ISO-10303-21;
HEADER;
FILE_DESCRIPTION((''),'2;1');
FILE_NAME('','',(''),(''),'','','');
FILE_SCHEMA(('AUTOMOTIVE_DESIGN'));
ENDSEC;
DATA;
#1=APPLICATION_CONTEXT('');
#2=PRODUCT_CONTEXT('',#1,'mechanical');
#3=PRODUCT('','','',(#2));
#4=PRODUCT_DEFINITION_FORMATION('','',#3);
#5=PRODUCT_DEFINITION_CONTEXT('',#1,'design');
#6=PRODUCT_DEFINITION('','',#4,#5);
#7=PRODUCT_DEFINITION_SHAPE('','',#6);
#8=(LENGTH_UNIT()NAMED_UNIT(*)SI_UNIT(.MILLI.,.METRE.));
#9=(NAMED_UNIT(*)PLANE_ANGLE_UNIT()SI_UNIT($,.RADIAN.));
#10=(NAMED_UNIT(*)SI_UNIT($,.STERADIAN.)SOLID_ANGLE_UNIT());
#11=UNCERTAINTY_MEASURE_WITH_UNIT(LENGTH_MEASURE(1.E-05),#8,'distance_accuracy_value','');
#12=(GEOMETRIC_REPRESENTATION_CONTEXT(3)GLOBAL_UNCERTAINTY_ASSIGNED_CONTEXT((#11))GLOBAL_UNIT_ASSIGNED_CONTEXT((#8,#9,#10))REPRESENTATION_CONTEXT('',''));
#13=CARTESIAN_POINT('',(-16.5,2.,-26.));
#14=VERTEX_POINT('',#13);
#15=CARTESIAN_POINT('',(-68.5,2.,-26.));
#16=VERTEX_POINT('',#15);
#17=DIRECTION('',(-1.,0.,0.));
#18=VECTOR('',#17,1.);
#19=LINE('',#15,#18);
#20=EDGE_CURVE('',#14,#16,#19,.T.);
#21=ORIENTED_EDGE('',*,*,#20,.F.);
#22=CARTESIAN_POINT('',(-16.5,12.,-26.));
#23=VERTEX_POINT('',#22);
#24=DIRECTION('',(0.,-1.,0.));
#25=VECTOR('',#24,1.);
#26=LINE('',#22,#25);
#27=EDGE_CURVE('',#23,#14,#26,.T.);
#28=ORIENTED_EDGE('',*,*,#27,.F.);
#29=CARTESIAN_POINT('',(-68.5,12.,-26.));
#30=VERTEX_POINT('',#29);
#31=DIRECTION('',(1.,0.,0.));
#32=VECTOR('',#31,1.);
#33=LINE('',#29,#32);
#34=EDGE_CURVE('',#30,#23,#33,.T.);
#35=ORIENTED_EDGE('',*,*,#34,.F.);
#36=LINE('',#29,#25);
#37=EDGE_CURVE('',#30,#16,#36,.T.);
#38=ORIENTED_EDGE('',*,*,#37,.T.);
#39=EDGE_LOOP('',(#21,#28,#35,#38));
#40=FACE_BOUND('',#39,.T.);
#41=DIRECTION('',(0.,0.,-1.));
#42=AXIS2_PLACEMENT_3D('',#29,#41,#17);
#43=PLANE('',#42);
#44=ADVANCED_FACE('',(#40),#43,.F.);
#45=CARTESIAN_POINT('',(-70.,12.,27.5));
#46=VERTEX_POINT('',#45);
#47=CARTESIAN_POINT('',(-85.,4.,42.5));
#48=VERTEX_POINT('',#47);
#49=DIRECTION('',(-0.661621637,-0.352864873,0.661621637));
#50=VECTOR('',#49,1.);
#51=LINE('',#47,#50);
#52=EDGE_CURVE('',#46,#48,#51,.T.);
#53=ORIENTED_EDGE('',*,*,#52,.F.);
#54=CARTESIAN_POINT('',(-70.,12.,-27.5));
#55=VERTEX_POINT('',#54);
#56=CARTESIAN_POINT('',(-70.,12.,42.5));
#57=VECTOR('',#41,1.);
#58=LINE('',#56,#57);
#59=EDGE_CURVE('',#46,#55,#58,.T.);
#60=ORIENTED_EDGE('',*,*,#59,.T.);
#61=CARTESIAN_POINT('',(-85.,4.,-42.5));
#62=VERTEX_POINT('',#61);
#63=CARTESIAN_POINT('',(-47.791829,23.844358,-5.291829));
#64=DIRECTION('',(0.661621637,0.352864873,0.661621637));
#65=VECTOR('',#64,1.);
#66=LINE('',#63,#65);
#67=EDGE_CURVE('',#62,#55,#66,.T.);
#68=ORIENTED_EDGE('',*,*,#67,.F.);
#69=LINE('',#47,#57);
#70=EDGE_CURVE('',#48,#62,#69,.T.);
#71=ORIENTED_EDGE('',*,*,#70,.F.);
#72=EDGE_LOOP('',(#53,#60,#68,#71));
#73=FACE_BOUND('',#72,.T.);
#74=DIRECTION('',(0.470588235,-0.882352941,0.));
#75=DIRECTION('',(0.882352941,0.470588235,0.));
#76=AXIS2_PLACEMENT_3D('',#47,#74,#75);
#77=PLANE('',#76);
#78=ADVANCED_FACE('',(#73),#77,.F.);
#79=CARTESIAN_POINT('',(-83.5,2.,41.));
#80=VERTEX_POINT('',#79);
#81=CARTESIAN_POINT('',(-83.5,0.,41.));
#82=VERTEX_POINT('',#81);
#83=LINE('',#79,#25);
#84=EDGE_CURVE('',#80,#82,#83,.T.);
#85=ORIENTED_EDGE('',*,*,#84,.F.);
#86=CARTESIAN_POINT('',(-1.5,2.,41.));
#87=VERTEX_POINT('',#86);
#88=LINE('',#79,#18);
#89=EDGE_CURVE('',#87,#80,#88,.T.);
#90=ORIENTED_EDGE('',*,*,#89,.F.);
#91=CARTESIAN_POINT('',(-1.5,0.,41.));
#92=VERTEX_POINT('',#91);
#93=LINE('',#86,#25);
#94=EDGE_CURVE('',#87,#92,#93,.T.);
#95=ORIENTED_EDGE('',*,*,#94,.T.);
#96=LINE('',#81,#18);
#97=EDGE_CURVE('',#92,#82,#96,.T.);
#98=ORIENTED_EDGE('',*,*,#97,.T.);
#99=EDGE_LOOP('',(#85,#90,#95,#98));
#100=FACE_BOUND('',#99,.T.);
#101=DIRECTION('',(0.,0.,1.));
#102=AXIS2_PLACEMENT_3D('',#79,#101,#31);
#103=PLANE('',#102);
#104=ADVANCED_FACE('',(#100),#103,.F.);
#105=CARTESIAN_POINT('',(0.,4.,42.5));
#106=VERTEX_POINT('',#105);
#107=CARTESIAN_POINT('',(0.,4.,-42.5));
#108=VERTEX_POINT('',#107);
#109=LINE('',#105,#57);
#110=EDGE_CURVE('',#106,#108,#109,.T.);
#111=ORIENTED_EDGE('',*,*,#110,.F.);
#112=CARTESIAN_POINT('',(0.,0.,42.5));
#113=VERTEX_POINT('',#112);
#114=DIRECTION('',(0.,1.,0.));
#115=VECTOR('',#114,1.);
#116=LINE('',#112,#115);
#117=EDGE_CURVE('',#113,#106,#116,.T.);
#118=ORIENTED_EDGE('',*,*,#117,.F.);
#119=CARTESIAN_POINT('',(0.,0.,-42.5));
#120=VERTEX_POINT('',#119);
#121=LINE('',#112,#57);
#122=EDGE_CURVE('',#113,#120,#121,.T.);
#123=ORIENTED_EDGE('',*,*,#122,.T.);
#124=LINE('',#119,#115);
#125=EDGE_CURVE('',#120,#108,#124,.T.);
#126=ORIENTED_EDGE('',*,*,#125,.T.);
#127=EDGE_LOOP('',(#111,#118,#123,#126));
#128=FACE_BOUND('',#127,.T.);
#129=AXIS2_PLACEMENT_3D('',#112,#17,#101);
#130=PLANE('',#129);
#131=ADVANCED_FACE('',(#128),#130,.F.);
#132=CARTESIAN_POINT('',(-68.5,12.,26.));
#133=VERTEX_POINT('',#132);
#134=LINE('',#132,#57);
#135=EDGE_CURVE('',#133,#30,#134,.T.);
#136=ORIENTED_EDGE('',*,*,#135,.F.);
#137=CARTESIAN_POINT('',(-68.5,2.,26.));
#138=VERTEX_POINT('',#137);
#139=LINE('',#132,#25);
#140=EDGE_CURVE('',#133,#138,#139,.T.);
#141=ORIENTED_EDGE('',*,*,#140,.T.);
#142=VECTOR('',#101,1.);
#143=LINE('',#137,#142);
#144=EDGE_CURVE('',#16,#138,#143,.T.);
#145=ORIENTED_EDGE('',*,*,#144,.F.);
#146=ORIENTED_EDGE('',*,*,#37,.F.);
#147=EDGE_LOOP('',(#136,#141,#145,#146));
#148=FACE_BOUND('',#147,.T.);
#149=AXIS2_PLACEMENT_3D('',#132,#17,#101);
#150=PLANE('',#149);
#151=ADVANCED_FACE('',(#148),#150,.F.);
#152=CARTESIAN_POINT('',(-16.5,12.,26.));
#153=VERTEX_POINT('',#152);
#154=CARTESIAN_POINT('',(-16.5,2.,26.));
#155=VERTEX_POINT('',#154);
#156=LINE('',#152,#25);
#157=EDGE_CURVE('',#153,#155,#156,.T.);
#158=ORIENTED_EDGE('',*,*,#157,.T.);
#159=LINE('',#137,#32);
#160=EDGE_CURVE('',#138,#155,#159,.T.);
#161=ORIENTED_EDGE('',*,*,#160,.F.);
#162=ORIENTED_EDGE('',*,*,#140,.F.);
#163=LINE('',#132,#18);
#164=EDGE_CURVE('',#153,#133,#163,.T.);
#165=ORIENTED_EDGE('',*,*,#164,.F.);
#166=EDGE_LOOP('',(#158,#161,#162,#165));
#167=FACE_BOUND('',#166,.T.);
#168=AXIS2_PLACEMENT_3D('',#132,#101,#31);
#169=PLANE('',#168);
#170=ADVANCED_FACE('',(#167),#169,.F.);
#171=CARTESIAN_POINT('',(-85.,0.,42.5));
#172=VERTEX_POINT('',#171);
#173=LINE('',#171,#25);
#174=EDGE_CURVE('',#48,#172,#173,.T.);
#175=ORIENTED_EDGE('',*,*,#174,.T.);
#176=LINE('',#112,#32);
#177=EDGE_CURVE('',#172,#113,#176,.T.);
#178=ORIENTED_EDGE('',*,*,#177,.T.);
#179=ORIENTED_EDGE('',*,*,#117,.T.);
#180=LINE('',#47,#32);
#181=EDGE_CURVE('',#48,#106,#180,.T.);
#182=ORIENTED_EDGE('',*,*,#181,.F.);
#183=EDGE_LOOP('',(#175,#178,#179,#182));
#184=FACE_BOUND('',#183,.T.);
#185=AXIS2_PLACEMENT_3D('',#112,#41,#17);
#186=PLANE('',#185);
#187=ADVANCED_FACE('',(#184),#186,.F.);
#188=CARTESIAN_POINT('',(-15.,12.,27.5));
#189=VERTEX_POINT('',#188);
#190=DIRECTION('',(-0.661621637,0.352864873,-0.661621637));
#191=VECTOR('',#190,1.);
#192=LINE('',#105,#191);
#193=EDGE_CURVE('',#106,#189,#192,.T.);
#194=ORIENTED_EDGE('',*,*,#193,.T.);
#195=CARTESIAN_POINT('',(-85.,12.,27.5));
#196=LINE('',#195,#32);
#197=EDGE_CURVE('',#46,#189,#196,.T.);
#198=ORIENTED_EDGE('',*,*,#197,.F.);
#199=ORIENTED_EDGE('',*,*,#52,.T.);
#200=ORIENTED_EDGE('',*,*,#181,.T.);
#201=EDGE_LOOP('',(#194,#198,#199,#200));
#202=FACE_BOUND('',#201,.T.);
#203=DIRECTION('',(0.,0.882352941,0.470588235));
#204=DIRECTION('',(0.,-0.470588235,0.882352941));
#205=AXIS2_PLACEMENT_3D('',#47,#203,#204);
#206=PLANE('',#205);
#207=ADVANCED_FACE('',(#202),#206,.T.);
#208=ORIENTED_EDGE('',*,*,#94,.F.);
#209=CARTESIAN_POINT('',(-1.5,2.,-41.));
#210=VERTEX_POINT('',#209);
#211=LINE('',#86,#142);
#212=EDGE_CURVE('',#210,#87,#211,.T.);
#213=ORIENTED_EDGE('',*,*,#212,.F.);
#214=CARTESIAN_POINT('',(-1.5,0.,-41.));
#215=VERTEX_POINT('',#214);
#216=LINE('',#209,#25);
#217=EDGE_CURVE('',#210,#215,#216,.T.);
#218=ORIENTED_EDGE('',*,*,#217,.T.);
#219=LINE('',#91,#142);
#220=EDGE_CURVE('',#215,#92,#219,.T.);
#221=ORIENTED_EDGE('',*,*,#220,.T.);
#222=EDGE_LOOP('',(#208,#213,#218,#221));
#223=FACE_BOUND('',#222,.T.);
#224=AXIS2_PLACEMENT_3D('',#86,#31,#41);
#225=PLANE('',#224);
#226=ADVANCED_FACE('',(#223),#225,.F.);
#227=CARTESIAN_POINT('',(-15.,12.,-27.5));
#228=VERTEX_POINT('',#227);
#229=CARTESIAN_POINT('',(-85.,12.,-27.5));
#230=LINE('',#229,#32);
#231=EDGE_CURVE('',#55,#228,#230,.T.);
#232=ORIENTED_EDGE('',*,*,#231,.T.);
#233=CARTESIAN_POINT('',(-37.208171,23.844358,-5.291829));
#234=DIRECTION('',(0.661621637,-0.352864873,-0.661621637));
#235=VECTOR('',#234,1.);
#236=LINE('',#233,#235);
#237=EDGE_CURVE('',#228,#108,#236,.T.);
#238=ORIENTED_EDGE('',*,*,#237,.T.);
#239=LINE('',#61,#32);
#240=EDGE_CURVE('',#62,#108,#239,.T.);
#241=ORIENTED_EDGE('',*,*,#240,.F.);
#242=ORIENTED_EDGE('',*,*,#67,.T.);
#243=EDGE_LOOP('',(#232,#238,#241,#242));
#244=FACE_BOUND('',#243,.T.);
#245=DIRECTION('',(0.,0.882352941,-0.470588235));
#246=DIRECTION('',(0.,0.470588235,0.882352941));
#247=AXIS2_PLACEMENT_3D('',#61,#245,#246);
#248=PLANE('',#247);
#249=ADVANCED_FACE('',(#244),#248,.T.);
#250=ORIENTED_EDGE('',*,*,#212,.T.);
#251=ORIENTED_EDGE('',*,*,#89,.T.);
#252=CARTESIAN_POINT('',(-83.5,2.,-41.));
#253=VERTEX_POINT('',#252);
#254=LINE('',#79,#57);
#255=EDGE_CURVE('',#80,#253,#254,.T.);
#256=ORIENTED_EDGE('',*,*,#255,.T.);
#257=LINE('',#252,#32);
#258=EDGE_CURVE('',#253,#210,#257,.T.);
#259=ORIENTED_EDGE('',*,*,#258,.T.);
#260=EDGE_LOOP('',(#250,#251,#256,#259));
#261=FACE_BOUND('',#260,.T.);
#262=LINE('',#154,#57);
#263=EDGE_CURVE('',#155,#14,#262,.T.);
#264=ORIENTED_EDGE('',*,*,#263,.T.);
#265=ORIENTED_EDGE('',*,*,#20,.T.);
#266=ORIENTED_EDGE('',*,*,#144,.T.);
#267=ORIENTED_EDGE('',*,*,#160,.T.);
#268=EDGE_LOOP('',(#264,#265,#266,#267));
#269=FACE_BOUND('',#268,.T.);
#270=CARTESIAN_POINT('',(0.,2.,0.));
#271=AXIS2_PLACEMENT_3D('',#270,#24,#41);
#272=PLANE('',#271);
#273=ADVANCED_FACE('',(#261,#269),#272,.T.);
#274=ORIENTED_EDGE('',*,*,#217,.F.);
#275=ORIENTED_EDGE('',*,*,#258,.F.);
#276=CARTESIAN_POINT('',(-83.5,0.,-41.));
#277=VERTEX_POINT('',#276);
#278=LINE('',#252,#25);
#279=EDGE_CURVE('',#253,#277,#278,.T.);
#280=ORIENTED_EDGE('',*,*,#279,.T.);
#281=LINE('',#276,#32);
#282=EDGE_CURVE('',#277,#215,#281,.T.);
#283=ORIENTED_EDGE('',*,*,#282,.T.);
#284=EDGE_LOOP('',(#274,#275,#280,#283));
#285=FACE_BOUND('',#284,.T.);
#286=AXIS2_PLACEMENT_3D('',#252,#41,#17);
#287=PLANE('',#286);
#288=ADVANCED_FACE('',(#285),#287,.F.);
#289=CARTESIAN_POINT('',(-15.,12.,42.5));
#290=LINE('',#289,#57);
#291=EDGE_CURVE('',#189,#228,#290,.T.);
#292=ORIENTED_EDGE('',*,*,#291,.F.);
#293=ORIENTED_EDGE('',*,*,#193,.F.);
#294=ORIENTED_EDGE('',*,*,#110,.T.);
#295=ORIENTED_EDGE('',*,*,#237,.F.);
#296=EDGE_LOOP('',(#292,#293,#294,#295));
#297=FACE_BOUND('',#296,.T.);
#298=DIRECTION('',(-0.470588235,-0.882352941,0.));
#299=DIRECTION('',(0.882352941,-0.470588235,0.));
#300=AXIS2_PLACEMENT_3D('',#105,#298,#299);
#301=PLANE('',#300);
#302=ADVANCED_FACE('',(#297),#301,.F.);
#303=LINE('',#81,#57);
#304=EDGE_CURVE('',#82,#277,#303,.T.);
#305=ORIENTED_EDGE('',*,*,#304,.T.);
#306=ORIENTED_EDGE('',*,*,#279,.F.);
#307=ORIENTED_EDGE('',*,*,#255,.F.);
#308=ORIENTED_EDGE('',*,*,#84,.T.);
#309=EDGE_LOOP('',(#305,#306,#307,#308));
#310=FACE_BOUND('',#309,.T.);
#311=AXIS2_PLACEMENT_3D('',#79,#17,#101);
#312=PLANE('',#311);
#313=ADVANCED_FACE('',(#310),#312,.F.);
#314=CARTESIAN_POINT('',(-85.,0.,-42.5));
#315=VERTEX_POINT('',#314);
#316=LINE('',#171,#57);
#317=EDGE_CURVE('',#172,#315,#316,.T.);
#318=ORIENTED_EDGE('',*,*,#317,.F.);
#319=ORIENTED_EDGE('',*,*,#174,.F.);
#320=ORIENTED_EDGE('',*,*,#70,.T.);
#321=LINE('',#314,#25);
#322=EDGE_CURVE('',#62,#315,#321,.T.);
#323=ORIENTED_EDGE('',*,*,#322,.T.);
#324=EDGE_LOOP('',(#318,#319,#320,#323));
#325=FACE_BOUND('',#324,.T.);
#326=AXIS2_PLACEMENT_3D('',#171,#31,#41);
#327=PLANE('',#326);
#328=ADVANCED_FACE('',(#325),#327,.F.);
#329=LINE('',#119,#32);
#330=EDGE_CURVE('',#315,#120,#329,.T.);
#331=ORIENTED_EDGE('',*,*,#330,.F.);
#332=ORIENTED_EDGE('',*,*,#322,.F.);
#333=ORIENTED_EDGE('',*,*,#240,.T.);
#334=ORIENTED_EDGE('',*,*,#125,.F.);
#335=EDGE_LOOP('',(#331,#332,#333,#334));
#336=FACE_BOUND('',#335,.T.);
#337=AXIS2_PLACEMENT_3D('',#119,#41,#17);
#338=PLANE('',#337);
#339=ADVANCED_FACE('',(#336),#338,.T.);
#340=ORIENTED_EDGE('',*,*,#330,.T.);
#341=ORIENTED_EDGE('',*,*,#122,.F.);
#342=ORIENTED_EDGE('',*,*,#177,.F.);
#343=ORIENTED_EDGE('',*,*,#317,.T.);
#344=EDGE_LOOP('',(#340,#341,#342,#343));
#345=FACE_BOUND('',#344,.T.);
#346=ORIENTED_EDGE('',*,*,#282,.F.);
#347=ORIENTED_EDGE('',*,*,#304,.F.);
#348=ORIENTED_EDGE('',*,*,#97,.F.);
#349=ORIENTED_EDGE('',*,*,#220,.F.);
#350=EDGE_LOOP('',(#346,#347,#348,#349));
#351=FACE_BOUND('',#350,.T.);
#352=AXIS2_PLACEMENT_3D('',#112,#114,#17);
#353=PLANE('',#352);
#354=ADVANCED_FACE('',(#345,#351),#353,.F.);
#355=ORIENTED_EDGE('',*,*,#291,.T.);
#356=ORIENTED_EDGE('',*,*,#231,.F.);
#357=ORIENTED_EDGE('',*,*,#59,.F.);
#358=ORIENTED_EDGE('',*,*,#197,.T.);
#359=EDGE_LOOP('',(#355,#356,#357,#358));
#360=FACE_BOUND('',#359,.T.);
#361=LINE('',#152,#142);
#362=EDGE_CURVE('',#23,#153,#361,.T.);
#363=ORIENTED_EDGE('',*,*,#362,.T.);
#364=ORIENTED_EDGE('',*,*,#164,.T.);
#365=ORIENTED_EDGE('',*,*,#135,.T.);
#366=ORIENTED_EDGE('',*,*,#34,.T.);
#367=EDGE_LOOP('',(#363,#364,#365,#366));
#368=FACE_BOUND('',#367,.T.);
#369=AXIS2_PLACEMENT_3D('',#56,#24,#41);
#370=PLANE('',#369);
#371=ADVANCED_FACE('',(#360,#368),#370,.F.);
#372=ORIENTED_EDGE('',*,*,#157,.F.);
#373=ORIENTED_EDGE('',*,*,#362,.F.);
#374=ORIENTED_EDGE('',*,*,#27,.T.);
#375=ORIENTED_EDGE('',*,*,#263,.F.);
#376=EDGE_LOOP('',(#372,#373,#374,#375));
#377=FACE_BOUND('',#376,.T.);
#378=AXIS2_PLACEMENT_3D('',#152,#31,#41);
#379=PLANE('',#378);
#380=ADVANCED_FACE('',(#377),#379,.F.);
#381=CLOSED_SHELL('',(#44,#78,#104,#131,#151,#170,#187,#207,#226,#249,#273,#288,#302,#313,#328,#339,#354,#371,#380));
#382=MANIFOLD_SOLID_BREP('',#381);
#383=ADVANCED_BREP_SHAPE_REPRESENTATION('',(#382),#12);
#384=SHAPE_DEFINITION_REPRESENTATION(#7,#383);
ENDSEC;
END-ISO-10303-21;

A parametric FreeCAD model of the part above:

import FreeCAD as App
import Part
import Sketcher
from FreeCAD import Vector
Q = App.Units.Quantity


def add_polygon(sketch, points):
    """Adds a closed chain of lines whose ends are joined by coincident constraints."""
    first, n = sketch.GeometryCount, len(points)
    for a, b in zip(points, points[1:] + points[:1]):
        sketch.addGeometry(Part.LineSegment(App.Vector(*a, 0), App.Vector(*b, 0)), False)
    for i in range(n):
        sketch.addConstraint(Sketcher.Constraint("Coincident", first + i, 2, first + (i + 1) % n, 1))

doc = App.newDocument("Part")
body = doc.addObject("PartDesign::Body", "Body")

# Sketch on XY plane
sketch1 = doc.addObject("Sketcher::SketchObject", "Sketch")
body.addObject(sketch1)
sketch1.AttachmentSupport = (doc.XY_Plane, [""])
sketch1.MapMode = "FlatFace"
add_polygon(sketch1, [(-85, 0), (0, 0), (0, 4), (-15, 12), (-70, 12), (-85, 4)])  # lines 0-5
sketch1.addConstraint([
    Sketcher.Constraint("Horizontal", 0),
    Sketcher.Constraint("Vertical", 1),
    Sketcher.Constraint("Horizontal", 3),
    Sketcher.Constraint("Vertical", 5),
    Sketcher.Constraint("Coincident", 0, 2, -1, 1),
    Sketcher.Constraint("Horizontal", 1, 2, 4, 2),
    Sketcher.Constraint("Equal", 2, 4),
    Sketcher.Constraint("DistanceX", 0, 1, 0, 2, Q("85 mm")),
    Sketcher.Constraint("DistanceX", 3, 2, 3, 1, Q("55 mm")),
    Sketcher.Constraint("DistanceY", 1, 1, 1, 2, Q("4 mm")),
    Sketcher.Constraint("Distance", 2, Q("17 mm")),
])
pad1 = doc.addObject("PartDesign::Pad", "Pad")
body.addObject(pad1)
pad1.Profile = sketch1
pad1.Length = 85
pad1.Midplane = True

# Sketch on YZ plane
sketch2 = doc.addObject("Sketcher::SketchObject", "Sketch001")
body.addObject(sketch2)
sketch2.AttachmentSupport = (doc.YZ_Plane, [""])
sketch2.MapMode = "FlatFace"
add_polygon(sketch2, [(25.1, 55.6), (-13.1, 55.6), (-13.1, -55.6), (25.1, -55.6)])  # lines 0-3
add_polygon(sketch2, [(0, 42.5), (4, 42.5), (12, 27.5), (12, -27.5), (4, -42.5), (0, -42.5)])  # lines 4-9
sketch2.addConstraint([
    Sketcher.Constraint("Horizontal", 0),
    Sketcher.Constraint("Vertical", 1),
    Sketcher.Constraint("Horizontal", 2),
    Sketcher.Constraint("Vertical", 3),
    Sketcher.Constraint("Horizontal", 4),
    Sketcher.Constraint("Vertical", 6),
    Sketcher.Constraint("Horizontal", 8),
    Sketcher.Constraint("Vertical", 9),
    Sketcher.Constraint("Symmetric", 8, 2, 9, 2, -1, 1),
    Sketcher.Constraint("Vertical", 4, 2, 7, 2),
    Sketcher.Constraint("Equal", 5, 7),
    Sketcher.Constraint("DistanceX", 4, 1, 4, 2, Q("4 mm")),
    Sketcher.Constraint("DistanceY", 6, 2, 6, 1, Q("55 mm")),
    Sketcher.Constraint("DistanceY", 9, 1, 9, 2, Q("85 mm")),
    Sketcher.Constraint("Distance", 5, Q("17 mm")),
    Sketcher.Constraint("DistanceX", 0, 2, 0, 1, Q("38.162 mm")),
    Sketcher.Constraint("DistanceY", 1, 2, 1, 1, Q("111.162 mm")),
    Sketcher.Constraint("DistanceX", 0, 2, -1, 1, Q("13.081 mm")),
    Sketcher.Constraint("DistanceY", -1, 1, 0, 2, Q("55.581 mm")),
])
pocket1 = doc.addObject("PartDesign::Pocket", "Pocket")
body.addObject(pocket1)
pocket1.Profile = sketch2
pocket1.Type = "ThroughAll"

# Sketch on XZ plane
sketch3 = doc.addObject("Sketcher::SketchObject", "Sketch002")
body.addObject(sketch3)
sketch3.AttachmentSupport = (doc.XZ_Plane, [""])
sketch3.MapMode = "FlatFace"
add_polygon(sketch3, [(-68, 26), (-68, -26), (-16, -26), (-16, 26)])  # lines 0-3
sketch3.addConstraint([
    Sketcher.Constraint("Vertical", 0),
    Sketcher.Constraint("Horizontal", 1),
    Sketcher.Constraint("Vertical", 2),
    Sketcher.Constraint("Horizontal", 3),
    Sketcher.Constraint("Equal", 3, 0),
    Sketcher.Constraint("DistanceX", 1, 1, 1, 2, Q("52 mm")),
    Sketcher.Constraint("DistanceY", 0, 2, -1, 1, Q("26 mm")),
    Sketcher.Constraint("DistanceX", 0, 2, -1, 1, Q("68.5 mm")),
])
pocket2 = doc.addObject("PartDesign::Pocket", "Pocket001")
body.addObject(pocket2)
pocket2.Profile = sketch3
pocket2.Type = "ThroughAll"

# Sketch on XZ plane
sketch4 = doc.addObject("Sketcher::SketchObject", "Sketch003")
body.addObject(sketch4)
sketch4.AttachmentSupport = (doc.XZ_Plane, [""])
sketch4.MapMode = "FlatFace"
add_polygon(sketch4, [(-84, 41), (-84, -41), (-2, -41), (-2, 41)])  # lines 0-3
sketch4.addConstraint([
    Sketcher.Constraint("Vertical", 0),
    Sketcher.Constraint("Horizontal", 1),
    Sketcher.Constraint("Vertical", 2),
    Sketcher.Constraint("Horizontal", 3),
    Sketcher.Constraint("Equal", 3, 0),
    Sketcher.Constraint("DistanceX", 1, 1, 1, 2, Q("82 mm")),
    Sketcher.Constraint("DistanceY", 0, 2, -1, 1, Q("41 mm")),
    Sketcher.Constraint("DistanceX", 0, 2, -1, 1, Q("83.5 mm")),
])
pocket3 = doc.addObject("PartDesign::Pocket", "Pocket002")
body.addObject(pocket3)
pocket3.Profile = sketch4
pocket3.Length = 2

doc.recompute()
